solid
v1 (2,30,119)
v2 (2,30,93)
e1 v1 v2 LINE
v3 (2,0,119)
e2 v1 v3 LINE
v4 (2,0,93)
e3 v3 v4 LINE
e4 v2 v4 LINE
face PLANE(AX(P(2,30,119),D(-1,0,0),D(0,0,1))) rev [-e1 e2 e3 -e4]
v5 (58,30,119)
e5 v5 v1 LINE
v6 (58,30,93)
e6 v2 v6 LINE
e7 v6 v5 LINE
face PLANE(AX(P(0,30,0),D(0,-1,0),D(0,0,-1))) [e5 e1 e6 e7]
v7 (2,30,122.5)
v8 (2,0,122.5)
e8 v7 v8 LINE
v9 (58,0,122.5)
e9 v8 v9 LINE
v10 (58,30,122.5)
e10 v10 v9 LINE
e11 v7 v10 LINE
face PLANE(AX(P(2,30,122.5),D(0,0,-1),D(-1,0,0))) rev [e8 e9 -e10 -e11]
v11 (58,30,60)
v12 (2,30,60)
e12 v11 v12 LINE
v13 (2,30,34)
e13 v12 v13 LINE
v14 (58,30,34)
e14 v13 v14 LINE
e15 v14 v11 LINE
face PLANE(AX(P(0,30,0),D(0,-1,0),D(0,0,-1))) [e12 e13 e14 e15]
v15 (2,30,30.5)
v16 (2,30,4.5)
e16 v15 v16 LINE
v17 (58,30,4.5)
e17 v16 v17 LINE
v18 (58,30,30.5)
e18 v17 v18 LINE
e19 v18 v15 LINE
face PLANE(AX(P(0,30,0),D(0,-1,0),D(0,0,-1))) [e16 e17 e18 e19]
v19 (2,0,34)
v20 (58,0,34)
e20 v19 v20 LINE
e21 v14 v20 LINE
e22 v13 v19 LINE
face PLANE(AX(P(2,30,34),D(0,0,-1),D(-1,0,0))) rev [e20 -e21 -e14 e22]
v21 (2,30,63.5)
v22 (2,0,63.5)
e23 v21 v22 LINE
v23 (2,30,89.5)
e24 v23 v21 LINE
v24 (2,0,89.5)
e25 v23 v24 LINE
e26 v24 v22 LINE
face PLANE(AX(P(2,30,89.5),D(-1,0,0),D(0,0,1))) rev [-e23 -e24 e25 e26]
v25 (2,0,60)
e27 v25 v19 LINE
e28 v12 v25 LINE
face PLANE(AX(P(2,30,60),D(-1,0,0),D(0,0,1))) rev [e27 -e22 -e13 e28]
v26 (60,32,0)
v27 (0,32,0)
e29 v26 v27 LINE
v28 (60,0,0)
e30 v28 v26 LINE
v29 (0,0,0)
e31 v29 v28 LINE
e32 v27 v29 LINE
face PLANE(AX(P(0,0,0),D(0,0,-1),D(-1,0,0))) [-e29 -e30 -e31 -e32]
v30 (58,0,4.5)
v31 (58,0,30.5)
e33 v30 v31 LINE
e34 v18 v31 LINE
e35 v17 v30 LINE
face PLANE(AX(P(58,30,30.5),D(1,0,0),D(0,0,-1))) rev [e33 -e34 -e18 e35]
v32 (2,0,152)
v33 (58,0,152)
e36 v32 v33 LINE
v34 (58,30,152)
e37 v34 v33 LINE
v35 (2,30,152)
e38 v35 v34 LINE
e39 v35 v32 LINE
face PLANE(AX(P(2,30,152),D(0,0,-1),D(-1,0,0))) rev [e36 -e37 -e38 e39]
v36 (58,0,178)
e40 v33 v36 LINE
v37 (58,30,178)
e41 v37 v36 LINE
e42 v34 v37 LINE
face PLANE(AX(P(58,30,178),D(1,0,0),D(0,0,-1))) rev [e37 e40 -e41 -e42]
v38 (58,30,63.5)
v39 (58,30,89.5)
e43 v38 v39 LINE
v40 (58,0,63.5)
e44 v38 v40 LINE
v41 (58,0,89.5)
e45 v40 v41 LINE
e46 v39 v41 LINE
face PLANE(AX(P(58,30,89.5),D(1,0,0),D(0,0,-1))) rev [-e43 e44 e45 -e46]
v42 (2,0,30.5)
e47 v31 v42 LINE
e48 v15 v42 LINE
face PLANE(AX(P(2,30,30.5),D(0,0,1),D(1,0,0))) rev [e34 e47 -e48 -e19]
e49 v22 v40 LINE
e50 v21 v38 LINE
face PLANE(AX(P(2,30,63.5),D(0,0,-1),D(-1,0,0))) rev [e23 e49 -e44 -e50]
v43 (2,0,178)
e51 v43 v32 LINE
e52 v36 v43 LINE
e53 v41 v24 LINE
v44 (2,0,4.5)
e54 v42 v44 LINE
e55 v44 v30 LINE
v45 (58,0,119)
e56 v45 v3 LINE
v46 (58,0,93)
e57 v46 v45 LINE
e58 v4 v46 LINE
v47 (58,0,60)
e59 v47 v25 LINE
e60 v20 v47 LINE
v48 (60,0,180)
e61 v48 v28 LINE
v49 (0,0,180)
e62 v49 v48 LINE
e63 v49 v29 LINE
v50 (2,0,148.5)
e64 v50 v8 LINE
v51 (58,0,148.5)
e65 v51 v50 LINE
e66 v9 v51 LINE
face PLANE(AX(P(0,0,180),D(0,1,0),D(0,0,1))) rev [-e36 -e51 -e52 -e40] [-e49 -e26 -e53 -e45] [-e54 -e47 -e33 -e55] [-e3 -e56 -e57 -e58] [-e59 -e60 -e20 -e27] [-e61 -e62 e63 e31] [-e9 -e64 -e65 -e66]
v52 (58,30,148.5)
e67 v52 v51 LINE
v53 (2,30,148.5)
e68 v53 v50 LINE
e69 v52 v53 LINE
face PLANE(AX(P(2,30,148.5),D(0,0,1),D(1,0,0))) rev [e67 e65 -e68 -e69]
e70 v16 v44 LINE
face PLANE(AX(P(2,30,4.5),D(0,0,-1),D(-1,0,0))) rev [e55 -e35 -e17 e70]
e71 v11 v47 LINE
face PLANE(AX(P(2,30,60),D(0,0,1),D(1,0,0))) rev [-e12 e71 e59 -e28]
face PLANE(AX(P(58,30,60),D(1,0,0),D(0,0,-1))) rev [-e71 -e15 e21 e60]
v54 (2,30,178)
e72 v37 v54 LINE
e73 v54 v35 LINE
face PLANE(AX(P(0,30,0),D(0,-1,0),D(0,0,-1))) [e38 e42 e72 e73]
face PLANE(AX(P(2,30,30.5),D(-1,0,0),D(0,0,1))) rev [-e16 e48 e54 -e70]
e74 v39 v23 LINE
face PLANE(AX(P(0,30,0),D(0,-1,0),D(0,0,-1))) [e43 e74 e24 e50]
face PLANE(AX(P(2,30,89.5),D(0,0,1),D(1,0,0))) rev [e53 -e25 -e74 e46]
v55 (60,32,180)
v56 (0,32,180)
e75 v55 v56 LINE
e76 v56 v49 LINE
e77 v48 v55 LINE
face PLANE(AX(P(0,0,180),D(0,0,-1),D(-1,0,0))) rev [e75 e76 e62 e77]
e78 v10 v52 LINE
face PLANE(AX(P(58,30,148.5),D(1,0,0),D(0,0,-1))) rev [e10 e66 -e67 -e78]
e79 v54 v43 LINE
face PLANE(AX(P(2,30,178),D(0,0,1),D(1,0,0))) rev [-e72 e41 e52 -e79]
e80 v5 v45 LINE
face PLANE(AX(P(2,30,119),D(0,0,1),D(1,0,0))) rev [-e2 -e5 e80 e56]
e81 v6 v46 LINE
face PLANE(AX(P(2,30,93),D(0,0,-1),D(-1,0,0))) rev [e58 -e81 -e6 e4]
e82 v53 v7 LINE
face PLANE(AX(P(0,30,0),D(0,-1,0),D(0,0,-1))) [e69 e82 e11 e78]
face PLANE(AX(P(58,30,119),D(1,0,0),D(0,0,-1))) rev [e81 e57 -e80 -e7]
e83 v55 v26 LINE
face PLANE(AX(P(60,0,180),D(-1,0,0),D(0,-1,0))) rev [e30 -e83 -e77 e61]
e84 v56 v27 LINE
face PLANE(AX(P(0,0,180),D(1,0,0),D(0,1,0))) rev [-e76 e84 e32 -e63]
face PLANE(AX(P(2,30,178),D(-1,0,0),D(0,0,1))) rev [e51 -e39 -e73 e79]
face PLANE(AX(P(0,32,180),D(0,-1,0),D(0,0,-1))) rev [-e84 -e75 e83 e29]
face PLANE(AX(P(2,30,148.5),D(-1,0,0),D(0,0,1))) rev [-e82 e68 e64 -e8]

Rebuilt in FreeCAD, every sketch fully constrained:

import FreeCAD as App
import Part
import Sketcher
from FreeCAD import Vector
Q = App.Units.Quantity

doc = App.newDocument("Part")
body = doc.addObject("PartDesign::Body", "Body")

sketch1 = body.newObject("Sketcher::SketchObject", "Sketch")
sketch1.AttachmentSupport = (doc.getObject("XY_Plane"), [""])
sketch1.MapMode = "FlatFace"
sketch1.addGeometry(Part.LineSegment(Vector(0, 32, 0), Vector(0, 0, 0)), False)
sketch1.addGeometry(Part.LineSegment(Vector(0, 0, 0), Vector(60, 0, 0)), False)
sketch1.addGeometry(Part.LineSegment(Vector(60, 0, 0), Vector(60, 32, 0)), False)
sketch1.addGeometry(Part.LineSegment(Vector(60, 32, 0), Vector(0, 32, 0)), False)
sketch1.addConstraint(Sketcher.Constraint("Coincident", 0, 2, 1, 1))
sketch1.addConstraint(Sketcher.Constraint("Coincident", 1, 2, 2, 1))
sketch1.addConstraint(Sketcher.Constraint("Coincident", 2, 2, 3, 1))
sketch1.addConstraint(Sketcher.Constraint("Coincident", 3, 2, 0, 1))
sketch1.addConstraint(Sketcher.Constraint("Vertical", 0))
sketch1.addConstraint(Sketcher.Constraint("Horizontal", 1))
sketch1.addConstraint(Sketcher.Constraint("Vertical", 2))
sketch1.addConstraint(Sketcher.Constraint("Horizontal", 3))
sketch1.addConstraint(Sketcher.Constraint("Coincident", 0, 2, -1, 1))
sketch1.addConstraint(Sketcher.Constraint("DistanceX", 1, 1, 1, 2, Q("60 mm")))
sketch1.addConstraint(Sketcher.Constraint("DistanceY", 0, 2, 0, 1, Q("32 mm")))
pad1 = body.newObject("PartDesign::Pad", "Pad")
pad1.Profile = sketch1
pad1.Length = 180

sketch2 = body.newObject("Sketcher::SketchObject", "Sketch001")
sketch2.AttachmentSupport = (doc.getObject("XZ_Plane"), [""])
sketch2.MapMode = "FlatFace"
sketch2.addGeometry(Part.LineSegment(Vector(58, 152, 0), Vector(58, 178, 0)), False)
sketch2.addGeometry(Part.LineSegment(Vector(58, 178, 0), Vector(2, 178, 0)), False)
sketch2.addGeometry(Part.LineSegment(Vector(2, 178, 0), Vector(2, 152, 0)), False)
sketch2.addGeometry(Part.LineSegment(Vector(2, 152, 0), Vector(58, 152, 0)), False)
sketch2.addGeometry(Part.LineSegment(Vector(58, 122.5, 0), Vector(58, 148.5, 0)), False)
sketch2.addGeometry(Part.LineSegment(Vector(58, 148.5, 0), Vector(2, 148.5, 0)), False)
sketch2.addGeometry(Part.LineSegment(Vector(2, 148.5, 0), Vector(2, 122.5, 0)), False)
sketch2.addGeometry(Part.LineSegment(Vector(2, 122.5, 0), Vector(58, 122.5, 0)), False)
sketch2.addGeometry(Part.LineSegment(Vector(58, 93, 0), Vector(58, 119, 0)), False)
sketch2.addGeometry(Part.LineSegment(Vector(58, 119, 0), Vector(2, 119, 0)), False)
sketch2.addGeometry(Part.LineSegment(Vector(2, 119, 0), Vector(2, 93, 0)), False)
sketch2.addGeometry(Part.LineSegment(Vector(2, 93, 0), Vector(58, 93, 0)), False)
sketch2.addGeometry(Part.LineSegment(Vector(58, 63.5, 0), Vector(58, 89.5, 0)), False)
sketch2.addGeometry(Part.LineSegment(Vector(58, 89.5, 0), Vector(2, 89.5, 0)), False)
sketch2.addGeometry(Part.LineSegment(Vector(2, 89.5, 0), Vector(2, 63.5, 0)), False)
sketch2.addGeometry(Part.LineSegment(Vector(2, 63.5, 0), Vector(58, 63.5, 0)), False)
sketch2.addGeometry(Part.LineSegment(Vector(58, 34, 0), Vector(58, 60, 0)), False)
sketch2.addGeometry(Part.LineSegment(Vector(58, 60, 0), Vector(2, 60, 0)), False)
sketch2.addGeometry(Part.LineSegment(Vector(2, 60, 0), Vector(2, 34, 0)), False)
sketch2.addGeometry(Part.LineSegment(Vector(2, 34, 0), Vector(58, 34, 0)), False)
sketch2.addGeometry(Part.LineSegment(Vector(58, 4.5, 0), Vector(58, 30.5, 0)), False)
sketch2.addGeometry(Part.LineSegment(Vector(58, 30.5, 0), Vector(2, 30.5, 0)), False)
sketch2.addGeometry(Part.LineSegment(Vector(2, 30.5, 0), Vector(2, 4.5, 0)), False)
sketch2.addGeometry(Part.LineSegment(Vector(2, 4.5, 0), Vector(58, 4.5, 0)), False)
sketch2.addConstraint(Sketcher.Constraint("Coincident", 0, 2, 1, 1))
sketch2.addConstraint(Sketcher.Constraint("Coincident", 1, 2, 2, 1))
sketch2.addConstraint(Sketcher.Constraint("Coincident", 2, 2, 3, 1))
sketch2.addConstraint(Sketcher.Constraint("Coincident", 3, 2, 0, 1))
sketch2.addConstraint(Sketcher.Constraint("Coincident", 4, 2, 5, 1))
sketch2.addConstraint(Sketcher.Constraint("Coincident", 5, 2, 6, 1))
sketch2.addConstraint(Sketcher.Constraint("Coincident", 6, 2, 7, 1))
sketch2.addConstraint(Sketcher.Constraint("Coincident", 7, 2, 4, 1))
sketch2.addConstraint(Sketcher.Constraint("Coincident", 8, 2, 9, 1))
sketch2.addConstraint(Sketcher.Constraint("Coincident", 9, 2, 10, 1))
sketch2.addConstraint(Sketcher.Constraint("Coincident", 10, 2, 11, 1))
sketch2.addConstraint(Sketcher.Constraint("Coincident", 11, 2, 8, 1))
sketch2.addConstraint(Sketcher.Constraint("Coincident", 12, 2, 13, 1))
sketch2.addConstraint(Sketcher.Constraint("Coincident", 13, 2, 14, 1))
sketch2.addConstraint(Sketcher.Constraint("Coincident", 14, 2, 15, 1))
sketch2.addConstraint(Sketcher.Constraint("Coincident", 15, 2, 12, 1))
sketch2.addConstraint(Sketcher.Constraint("Coincident", 16, 2, 17, 1))
sketch2.addConstraint(Sketcher.Constraint("Coincident", 17, 2, 18, 1))
sketch2.addConstraint(Sketcher.Constraint("Coincident", 18, 2, 19, 1))
sketch2.addConstraint(Sketcher.Constraint("Coincident", 19, 2, 16, 1))
sketch2.addConstraint(Sketcher.Constraint("Coincident", 20, 2, 21, 1))
sketch2.addConstraint(Sketcher.Constraint("Coincident", 21, 2, 22, 1))
sketch2.addConstraint(Sketcher.Constraint("Coincident", 22, 2, 23, 1))
sketch2.addConstraint(Sketcher.Constraint("Coincident", 23, 2, 20, 1))
sketch2.addConstraint(Sketcher.Constraint("Vertical", 0))
sketch2.addConstraint(Sketcher.Constraint("Horizontal", 1))
sketch2.addConstraint(Sketcher.Constraint("Vertical", 2))
sketch2.addConstraint(Sketcher.Constraint("Horizontal", 3))
sketch2.addConstraint(Sketcher.Constraint("Vertical", 4))
sketch2.addConstraint(Sketcher.Constraint("Horizontal", 5))
sketch2.addConstraint(Sketcher.Constraint("Vertical", 6))
sketch2.addConstraint(Sketcher.Constraint("Horizontal", 7))
sketch2.addConstraint(Sketcher.Constraint("Vertical", 8))
sketch2.addConstraint(Sketcher.Constraint("Horizontal", 9))
sketch2.addConstraint(Sketcher.Constraint("Vertical", 10))
sketch2.addConstraint(Sketcher.Constraint("Horizontal", 11))
sketch2.addConstraint(Sketcher.Constraint("Vertical", 12))
sketch2.addConstraint(Sketcher.Constraint("Horizontal", 13))
sketch2.addConstraint(Sketcher.Constraint("Vertical", 14))
sketch2.addConstraint(Sketcher.Constraint("Horizontal", 15))
sketch2.addConstraint(Sketcher.Constraint("Vertical", 16))
sketch2.addConstraint(Sketcher.Constraint("Horizontal", 17))
sketch2.addConstraint(Sketcher.Constraint("Vertical", 18))
sketch2.addConstraint(Sketcher.Constraint("Horizontal", 19))
sketch2.addConstraint(Sketcher.Constraint("Vertical", 20))
sketch2.addConstraint(Sketcher.Constraint("Horizontal", 21))
sketch2.addConstraint(Sketcher.Constraint("Vertical", 22))
sketch2.addConstraint(Sketcher.Constraint("Horizontal", 23))
sketch2.addConstraint(Sketcher.Constraint("Vertical", 3, 2, 4, 2))
sketch2.addConstraint(Sketcher.Constraint("Vertical", 2, 2, 5, 2))
sketch2.addConstraint(Sketcher.Constraint("Vertical", 7, 2, 8, 2))
sketch2.addConstraint(Sketcher.Constraint("Vertical", 6, 2, 9, 2))
sketch2.addConstraint(Sketcher.Constraint("Vertical", 11, 2, 12, 2))
sketch2.addConstraint(Sketcher.Constraint("Vertical", 10, 2, 13, 2))
sketch2.addConstraint(Sketcher.Constraint("Vertical", 15, 2, 16, 2))
sketch2.addConstraint(Sketcher.Constraint("Vertical", 14, 2, 17, 2))
sketch2.addConstraint(Sketcher.Constraint("Vertical", 19, 2, 20, 2))
sketch2.addConstraint(Sketcher.Constraint("Vertical", 18, 2, 21, 2))
sketch2.addConstraint(Sketcher.Constraint("Equal", 2, 4))
sketch2.addConstraint(Sketcher.Constraint("Equal", 6, 8))
sketch2.addConstraint(Sketcher.Constraint("Equal", 10, 12))
sketch2.addConstraint(Sketcher.Constraint("Equal", 14, 16))
sketch2.addConstraint(Sketcher.Constraint("Equal", 18, 20))
sketch2.addConstraint(Sketcher.Constraint("DistanceX", 1, 2, 1, 1, Q("56 mm")))
sketch2.addConstraint(Sketcher.Constraint("DistanceY", 0, 1, 0, 2, Q("26 mm")))
sketch2.addConstraint(Sketcher.Constraint("DistanceX", -1, 1, 0, 2, Q("58 mm")))
sketch2.addConstraint(Sketcher.Constraint("DistanceY", -1, 1, 0, 2, Q("178 mm")))
sketch2.addConstraint(Sketcher.Constraint("DistanceY", -1, 1, 8, 2, Q("119 mm")))
sketch2.addConstraint(Sketcher.Constraint("DistanceY", -1, 1, 16, 2, Q("60 mm")))
sketch2.addConstraint(Sketcher.Constraint("DistanceY", 12, 2, 7, 2, Q("33 mm")))
sketch2.addConstraint(Sketcher.Constraint("DistanceY", 20, 2, 15, 2, Q("33 mm")))
sketch2.addConstraint(Sketcher.Constraint("DistanceY", -1, 1, 4, 2, Q("148.5 mm")))
pocket1 = body.newObject("PartDesign::Pocket", "Pocket")
pocket1.Profile = sketch2
pocket1.Length = 30

doc.recompute()
